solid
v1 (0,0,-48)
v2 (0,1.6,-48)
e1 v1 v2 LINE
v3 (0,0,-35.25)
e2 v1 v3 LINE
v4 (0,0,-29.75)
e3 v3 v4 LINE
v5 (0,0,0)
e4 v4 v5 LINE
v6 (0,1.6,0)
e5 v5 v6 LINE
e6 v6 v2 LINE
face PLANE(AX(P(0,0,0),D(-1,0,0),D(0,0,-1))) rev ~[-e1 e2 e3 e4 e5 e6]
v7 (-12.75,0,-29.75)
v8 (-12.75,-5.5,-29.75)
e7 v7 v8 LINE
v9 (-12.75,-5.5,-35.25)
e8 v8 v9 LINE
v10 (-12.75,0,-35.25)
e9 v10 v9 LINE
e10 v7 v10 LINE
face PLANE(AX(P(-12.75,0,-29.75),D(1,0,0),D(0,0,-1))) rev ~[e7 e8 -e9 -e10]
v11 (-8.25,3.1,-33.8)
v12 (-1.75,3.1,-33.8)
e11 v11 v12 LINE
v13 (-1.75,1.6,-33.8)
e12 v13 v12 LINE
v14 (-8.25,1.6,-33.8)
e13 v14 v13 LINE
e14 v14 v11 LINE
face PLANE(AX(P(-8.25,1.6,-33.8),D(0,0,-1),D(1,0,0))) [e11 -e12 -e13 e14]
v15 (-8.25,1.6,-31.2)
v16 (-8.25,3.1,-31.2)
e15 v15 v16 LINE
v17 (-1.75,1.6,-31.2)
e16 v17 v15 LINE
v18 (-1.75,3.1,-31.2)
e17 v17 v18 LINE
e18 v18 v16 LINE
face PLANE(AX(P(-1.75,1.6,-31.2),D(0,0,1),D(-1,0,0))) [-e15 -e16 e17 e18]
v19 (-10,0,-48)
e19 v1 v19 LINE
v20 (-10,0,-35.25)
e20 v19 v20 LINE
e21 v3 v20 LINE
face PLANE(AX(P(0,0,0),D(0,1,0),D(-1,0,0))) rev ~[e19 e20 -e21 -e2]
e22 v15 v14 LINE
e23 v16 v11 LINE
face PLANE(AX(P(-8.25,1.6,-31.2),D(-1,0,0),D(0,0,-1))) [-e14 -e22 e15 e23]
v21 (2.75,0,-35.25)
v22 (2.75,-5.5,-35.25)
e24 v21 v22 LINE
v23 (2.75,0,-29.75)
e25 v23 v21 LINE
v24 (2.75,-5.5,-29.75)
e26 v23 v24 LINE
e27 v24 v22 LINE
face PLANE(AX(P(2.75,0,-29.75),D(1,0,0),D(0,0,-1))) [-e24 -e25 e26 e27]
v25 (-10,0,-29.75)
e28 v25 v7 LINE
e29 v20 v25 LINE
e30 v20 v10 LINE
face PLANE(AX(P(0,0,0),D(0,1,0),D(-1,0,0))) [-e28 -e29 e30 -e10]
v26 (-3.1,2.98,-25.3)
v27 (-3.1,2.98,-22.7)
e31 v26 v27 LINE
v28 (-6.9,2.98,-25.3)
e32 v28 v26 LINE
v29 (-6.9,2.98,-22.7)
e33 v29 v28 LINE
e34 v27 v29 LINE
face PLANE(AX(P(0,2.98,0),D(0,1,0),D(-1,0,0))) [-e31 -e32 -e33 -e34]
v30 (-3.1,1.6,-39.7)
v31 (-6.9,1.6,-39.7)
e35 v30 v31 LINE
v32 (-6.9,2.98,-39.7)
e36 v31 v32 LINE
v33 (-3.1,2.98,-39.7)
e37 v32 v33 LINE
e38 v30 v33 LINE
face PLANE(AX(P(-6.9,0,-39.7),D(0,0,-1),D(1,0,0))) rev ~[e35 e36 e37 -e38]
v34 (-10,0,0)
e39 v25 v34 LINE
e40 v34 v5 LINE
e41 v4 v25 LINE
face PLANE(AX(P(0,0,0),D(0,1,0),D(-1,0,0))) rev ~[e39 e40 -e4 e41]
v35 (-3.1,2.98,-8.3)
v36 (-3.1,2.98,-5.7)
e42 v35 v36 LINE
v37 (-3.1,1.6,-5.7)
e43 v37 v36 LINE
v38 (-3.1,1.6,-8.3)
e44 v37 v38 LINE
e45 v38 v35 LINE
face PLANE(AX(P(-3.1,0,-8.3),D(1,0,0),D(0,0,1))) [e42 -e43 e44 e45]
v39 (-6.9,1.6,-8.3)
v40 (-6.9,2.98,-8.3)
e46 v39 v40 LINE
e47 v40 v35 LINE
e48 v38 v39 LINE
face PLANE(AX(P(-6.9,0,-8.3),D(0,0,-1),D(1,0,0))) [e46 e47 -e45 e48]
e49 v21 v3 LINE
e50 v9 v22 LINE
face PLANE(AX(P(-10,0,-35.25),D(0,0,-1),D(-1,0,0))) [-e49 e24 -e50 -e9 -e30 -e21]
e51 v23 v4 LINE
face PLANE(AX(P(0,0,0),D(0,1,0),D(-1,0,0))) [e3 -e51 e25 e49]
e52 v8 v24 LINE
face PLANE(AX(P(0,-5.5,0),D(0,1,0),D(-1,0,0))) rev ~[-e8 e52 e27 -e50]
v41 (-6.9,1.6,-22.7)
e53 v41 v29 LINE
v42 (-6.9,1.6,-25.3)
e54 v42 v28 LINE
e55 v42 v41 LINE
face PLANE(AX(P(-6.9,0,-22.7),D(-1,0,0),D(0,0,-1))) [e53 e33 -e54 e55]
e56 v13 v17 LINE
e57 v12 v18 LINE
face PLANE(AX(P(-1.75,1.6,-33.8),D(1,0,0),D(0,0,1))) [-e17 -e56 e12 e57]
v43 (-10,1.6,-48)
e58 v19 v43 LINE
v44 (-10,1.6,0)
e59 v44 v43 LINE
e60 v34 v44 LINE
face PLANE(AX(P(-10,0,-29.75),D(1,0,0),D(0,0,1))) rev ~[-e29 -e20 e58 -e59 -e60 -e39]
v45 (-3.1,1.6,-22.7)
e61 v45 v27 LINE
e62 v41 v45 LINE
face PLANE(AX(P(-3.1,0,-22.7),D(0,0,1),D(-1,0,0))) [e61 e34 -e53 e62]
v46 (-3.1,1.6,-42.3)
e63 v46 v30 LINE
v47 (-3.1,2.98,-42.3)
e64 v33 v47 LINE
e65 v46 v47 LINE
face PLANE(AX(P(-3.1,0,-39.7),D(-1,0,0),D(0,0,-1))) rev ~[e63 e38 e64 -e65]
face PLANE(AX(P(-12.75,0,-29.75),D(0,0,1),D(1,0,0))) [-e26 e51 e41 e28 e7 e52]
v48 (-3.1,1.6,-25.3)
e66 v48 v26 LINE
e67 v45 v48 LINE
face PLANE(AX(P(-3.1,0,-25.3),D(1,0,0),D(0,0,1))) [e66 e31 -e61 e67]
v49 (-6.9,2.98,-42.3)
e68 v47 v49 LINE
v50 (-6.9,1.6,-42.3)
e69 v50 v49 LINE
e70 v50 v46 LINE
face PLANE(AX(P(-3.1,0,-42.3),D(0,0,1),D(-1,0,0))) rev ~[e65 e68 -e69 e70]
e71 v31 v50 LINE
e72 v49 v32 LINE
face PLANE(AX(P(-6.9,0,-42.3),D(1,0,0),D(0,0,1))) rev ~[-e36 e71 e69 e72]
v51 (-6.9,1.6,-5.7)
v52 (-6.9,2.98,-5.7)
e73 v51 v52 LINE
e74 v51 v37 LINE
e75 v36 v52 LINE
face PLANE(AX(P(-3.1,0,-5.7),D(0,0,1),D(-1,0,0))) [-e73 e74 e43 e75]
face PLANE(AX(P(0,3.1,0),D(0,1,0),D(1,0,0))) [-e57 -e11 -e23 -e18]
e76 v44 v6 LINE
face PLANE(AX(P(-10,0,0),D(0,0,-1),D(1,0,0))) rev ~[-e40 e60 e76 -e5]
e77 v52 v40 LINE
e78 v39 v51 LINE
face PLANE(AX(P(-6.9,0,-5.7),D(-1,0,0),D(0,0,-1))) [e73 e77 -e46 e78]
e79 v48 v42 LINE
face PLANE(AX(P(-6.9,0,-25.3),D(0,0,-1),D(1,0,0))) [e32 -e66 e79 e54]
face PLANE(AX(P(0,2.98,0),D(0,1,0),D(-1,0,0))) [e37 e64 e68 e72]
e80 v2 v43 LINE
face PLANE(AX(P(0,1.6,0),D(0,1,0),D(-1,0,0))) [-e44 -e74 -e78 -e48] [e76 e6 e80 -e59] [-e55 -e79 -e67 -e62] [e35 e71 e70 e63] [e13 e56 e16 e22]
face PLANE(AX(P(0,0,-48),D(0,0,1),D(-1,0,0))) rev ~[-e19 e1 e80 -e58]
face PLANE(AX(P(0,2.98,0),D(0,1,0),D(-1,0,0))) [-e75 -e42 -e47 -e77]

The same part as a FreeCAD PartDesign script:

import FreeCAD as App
import Part
import Sketcher
Q = App.Units.Quantity


def add_polygon(sketch, points):
    """Adds a closed chain of lines whose ends are joined by coincident constraints."""
    first, n = sketch.GeometryCount, len(points)
    for a, b in zip(points, points[1:] + points[:1]):
        sketch.addGeometry(Part.LineSegment(App.Vector(*a, 0), App.Vector(*b, 0)), False)
    for i in range(n):
        sketch.addConstraint(Sketcher.Constraint("Coincident", first + i, 2, first + (i + 1) % n, 1))

doc = App.newDocument("Part")
body = doc.addObject("PartDesign::Body", "Body")

sketch1 = body.newObject("Sketcher::SketchObject", "Sketch")
sketch1.AttachmentSupport = (doc.getObject("XZ_Plane"), [""])
sketch1.MapMode = "FlatFace"
add_polygon(sketch1, [(-10, 0), (0, 0), (0, -48), (-10, -48)])
sketch1.addConstraint([
    Sketcher.Constraint("Horizontal", 0),
    Sketcher.Constraint("Vertical", 1),
    Sketcher.Constraint("Horizontal", 2),
    Sketcher.Constraint("Vertical", 3),
    Sketcher.Constraint("Coincident", 0, 2, -1, 1),
    Sketcher.Constraint("DistanceX", 0, 1, 0, 2, Q("10 mm")),
    Sketcher.Constraint("DistanceY", 1, 2, 1, 1, Q("48 mm")),
])
pad1 = body.newObject("PartDesign::Pad", "Pad")
pad1.Profile = sketch1
pad1.Length = 1.6
pad1.Reversed = True

sketch2 = body.newObject("Sketcher::SketchObject", "Sketch001")
sketch2.AttachmentSupport = (doc.getObject("XZ_Plane"), [""])
sketch2.MapMode = "FlatFace"
add_polygon(sketch2, [(-3.1, -8.3), (-6.9, -8.3), (-6.9, -5.7), (-3.1, -5.7)])
add_polygon(sketch2, [(-6.9, -42.3), (-6.9, -39.7), (-3.1, -39.7), (-3.1, -42.3)])
add_polygon(sketch2, [(-6.9, -22.7), (-3.1, -22.7), (-3.1, -25.3), (-6.9, -25.3)])
sketch2.addConstraint([
    Sketcher.Constraint("Horizontal", 0),
    Sketcher.Constraint("Vertical", 1),
    Sketcher.Constraint("Horizontal", 2),
    Sketcher.Constraint("Vertical", 3),
    Sketcher.Constraint("Vertical", 4),
    Sketcher.Constraint("Horizontal", 5),
    Sketcher.Constraint("Vertical", 6),
    Sketcher.Constraint("Horizontal", 7),
    Sketcher.Constraint("Horizontal", 8),
    Sketcher.Constraint("Vertical", 9),
    Sketcher.Constraint("Horizontal", 10),
    Sketcher.Constraint("Vertical", 11),
    Sketcher.Constraint("Vertical", 1, 2, 4, 2),
    Sketcher.Constraint("Vertical", 3, 2, 5, 2),
    Sketcher.Constraint("Vertical", 6, 2, 8, 2),
    Sketcher.Constraint("Vertical", 7, 2, 10, 2),
    Sketcher.Constraint("Equal", 3, 4),
    Sketcher.Constraint("Equal", 6, 9),
    Sketcher.Constraint("DistanceX", 0, 2, 0, 1, Q("3.8 mm")),
    Sketcher.Constraint("DistanceY", 1, 1, 1, 2, Q("2.6 mm")),
    Sketcher.Constraint("DistanceY", 4, 2, 1, 2, Q("34 mm")),
    Sketcher.Constraint("DistanceY", 8, 2, 2, 2, Q("17 mm")),
    Sketcher.Constraint("DistanceX", 0, 2, -1, 1, Q("6.9 mm")),
    Sketcher.Constraint("DistanceY", 0, 2, -1, 1, Q("8.3 mm")),
])
pad2 = body.newObject("PartDesign::Pad", "Pad001")
pad2.Profile = sketch2
pad2.Length = 2.98
pad2.Reversed = True

sketch3 = body.newObject("Sketcher::SketchObject", "Sketch002")
sketch3.AttachmentSupport = (doc.getObject("XZ_Plane"), [""])
sketch3.MapMode = "FlatFace"
add_polygon(sketch3, [(-13, -30), (3, -30), (3, -35), (-13, -35)])
sketch3.addConstraint([
    Sketcher.Constraint("Horizontal", 0),
    Sketcher.Constraint("Vertical", 1),
    Sketcher.Constraint("Horizontal", 2),
    Sketcher.Constraint("Vertical", 3),
    Sketcher.Constraint("DistanceX", 0, 1, 0, 2, Q("15.5 mm")),
    Sketcher.Constraint("DistanceY", 1, 2, 1, 1, Q("5.5 mm")),
    Sketcher.Constraint("DistanceX", -1, 1, 0, 2, Q("2.75 mm")),
    Sketcher.Constraint("DistanceY", 0, 2, -1, 1, Q("29.75 mm")),
])
pad3 = body.newObject("PartDesign::Pad", "Pad002")
pad3.Profile = sketch3
pad3.Length = 5.5

sketch4 = body.newObject("Sketcher::SketchObject", "Sketch003")
sketch4.AttachmentSupport = (doc.getObject("XZ_Plane"), [""])
sketch4.MapMode = "FlatFace"
sketch4.AttachmentOffset = App.Placement(App.Vector(0, 0, -1.6), App.Rotation())
add_polygon(sketch4, [(-8.2, -31.2), (-1.8, -31.2), (-1.8, -33.8), (-8.2, -33.8)])
sketch4.addConstraint([
    Sketcher.Constraint("Horizontal", 0),
    Sketcher.Constraint("Vertical", 1),
    Sketcher.Constraint("Horizontal", 2),
    Sketcher.Constraint("Vertical", 3),
    Sketcher.Constraint("DistanceX", 0, 1, 0, 2, Q("6.5 mm")),
    Sketcher.Constraint("DistanceY", 1, 2, 1, 1, Q("2.6 mm")),
    Sketcher.Constraint("DistanceY", 0, 2, -1, 1, Q("31.2 mm")),
    Sketcher.Constraint("DistanceX", 0, 2, -1, 1, Q("1.75 mm")),
])
pad4 = body.newObject("PartDesign::Pad", "Pad003")
pad4.Profile = sketch4
pad4.Length = 1.5
pad4.Reversed = True

doc.recompute()
